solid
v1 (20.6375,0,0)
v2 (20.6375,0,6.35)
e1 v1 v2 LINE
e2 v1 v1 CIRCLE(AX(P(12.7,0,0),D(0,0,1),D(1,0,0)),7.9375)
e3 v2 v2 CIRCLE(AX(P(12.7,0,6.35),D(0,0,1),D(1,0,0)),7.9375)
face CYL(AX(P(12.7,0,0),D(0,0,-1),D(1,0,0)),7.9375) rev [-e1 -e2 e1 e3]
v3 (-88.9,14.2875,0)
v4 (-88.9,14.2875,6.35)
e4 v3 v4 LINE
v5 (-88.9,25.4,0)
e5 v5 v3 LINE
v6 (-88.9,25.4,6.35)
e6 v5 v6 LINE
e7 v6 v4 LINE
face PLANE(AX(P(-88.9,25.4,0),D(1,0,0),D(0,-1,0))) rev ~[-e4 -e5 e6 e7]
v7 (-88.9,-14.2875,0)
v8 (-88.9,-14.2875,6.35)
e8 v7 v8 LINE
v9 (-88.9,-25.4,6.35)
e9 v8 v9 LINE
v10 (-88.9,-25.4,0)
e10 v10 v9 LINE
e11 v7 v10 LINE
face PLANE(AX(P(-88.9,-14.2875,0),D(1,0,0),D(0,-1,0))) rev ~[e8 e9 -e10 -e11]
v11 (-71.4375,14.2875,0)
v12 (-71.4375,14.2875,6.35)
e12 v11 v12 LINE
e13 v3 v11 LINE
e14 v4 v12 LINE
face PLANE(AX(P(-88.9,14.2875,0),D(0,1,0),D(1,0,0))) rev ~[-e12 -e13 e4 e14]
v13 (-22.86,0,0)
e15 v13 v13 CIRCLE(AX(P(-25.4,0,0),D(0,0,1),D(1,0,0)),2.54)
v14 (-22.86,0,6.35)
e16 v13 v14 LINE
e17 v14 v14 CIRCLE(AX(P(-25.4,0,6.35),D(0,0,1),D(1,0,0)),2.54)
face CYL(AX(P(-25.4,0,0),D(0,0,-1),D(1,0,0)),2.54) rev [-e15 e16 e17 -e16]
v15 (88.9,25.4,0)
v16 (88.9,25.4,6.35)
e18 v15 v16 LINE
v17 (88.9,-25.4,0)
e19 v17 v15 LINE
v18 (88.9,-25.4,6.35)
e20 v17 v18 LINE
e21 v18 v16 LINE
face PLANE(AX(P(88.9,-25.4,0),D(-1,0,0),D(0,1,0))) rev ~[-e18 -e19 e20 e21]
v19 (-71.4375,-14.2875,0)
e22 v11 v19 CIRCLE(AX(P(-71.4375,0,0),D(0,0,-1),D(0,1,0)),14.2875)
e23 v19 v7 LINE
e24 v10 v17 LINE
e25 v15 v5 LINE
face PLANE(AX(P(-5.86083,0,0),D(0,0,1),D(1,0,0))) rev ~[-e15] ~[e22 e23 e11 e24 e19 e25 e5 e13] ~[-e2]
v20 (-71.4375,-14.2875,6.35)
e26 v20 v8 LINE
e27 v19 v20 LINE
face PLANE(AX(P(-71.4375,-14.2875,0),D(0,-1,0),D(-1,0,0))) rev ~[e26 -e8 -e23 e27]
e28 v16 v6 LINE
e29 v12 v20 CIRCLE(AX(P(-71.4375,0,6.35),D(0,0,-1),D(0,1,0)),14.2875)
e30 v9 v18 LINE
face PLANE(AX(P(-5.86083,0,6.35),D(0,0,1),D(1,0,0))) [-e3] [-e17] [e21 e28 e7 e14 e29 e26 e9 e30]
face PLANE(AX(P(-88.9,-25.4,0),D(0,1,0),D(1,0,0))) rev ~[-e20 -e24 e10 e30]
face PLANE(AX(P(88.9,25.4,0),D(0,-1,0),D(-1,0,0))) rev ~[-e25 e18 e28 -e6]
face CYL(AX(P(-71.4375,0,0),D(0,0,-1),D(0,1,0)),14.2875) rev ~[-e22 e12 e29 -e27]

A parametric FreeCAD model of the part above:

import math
import FreeCAD as App
import Part
import Sketcher

V = App.Vector
Q = App.Units.Quantity

doc = App.newDocument("Part")
body = doc.addObject("PartDesign::Body", "Body")

# Sketch on XY plane
sketch1 = body.newObject("Sketcher::SketchObject", "Sketch")
sketch1.AttachmentSupport = (doc.getObject("XY_Plane"), [""])
sketch1.MapMode = "FlatFace"
sketch1.addGeometry([
    Part.LineSegment(V(88.9, -25.4, 0), V(88.9, 25.4, 0)),  # 0
    Part.LineSegment(V(88.9, 25.4, 0), V(-88.9, 25.4, 0)),  # 1
    Part.LineSegment(V(-88.9, 25.4, 0), V(-88.9, 14.3, 0)),  # 2
    Part.LineSegment(V(-88.9, 14.3, 0), V(-71.4, 14.3, 0)),  # 3
    Part.ArcOfCircle(Part.Circle(V(-71.4, 0, 0), V(0, 0, 1), 14.3), math.radians(-90), math.radians(90)),  # 4
    Part.LineSegment(V(-71.4, -14.3, 0), V(-88.9, -14.3, 0)),  # 5
    Part.LineSegment(V(-88.9, -14.3, 0), V(-88.9, -25.4, 0)),  # 6
    Part.LineSegment(V(-88.9, -25.4, 0), V(88.9, -25.4, 0)),  # 7
    Part.Circle(V(-25.4, 0, 0), V(0, 0, 1), 2.5),  # 8
    Part.Circle(V(12.7, 0, 0), V(0, 0, 1), 7.9),  # 9
], False)
sketch1.addConstraint([
    Sketcher.Constraint("Coincident", 0, 2, 1, 1),
    Sketcher.Constraint("Coincident", 1, 2, 2, 1),
    Sketcher.Constraint("Coincident", 2, 2, 3, 1),
    Sketcher.Constraint("Tangent", 3, 2, 4, 2),
    Sketcher.Constraint("Tangent", 4, 1, 5, 1),
    Sketcher.Constraint("Coincident", 5, 2, 6, 1),
    Sketcher.Constraint("Coincident", 6, 2, 7, 1),
    Sketcher.Constraint("Coincident", 7, 2, 0, 1),
    Sketcher.Constraint("Vertical", 0),
    Sketcher.Constraint("Horizontal", 1),
    Sketcher.Constraint("Vertical", 2),
    Sketcher.Constraint("Horizontal", 3),
    Sketcher.Constraint("Horizontal", 5),
    Sketcher.Constraint("Vertical", 6),
    Sketcher.Constraint("Horizontal", 7),
    Sketcher.Constraint("Symmetric", 0, 2, 6, 2, -1, 1),
    Sketcher.Constraint("Symmetric", 2, 2, 5, 2, -1),
    Sketcher.Constraint("PointOnObject", 8, 3, -1),
    Sketcher.Constraint("PointOnObject", 9, 3, -1),
    Sketcher.Constraint("Diameter", 8, Q("0.2 in")),
    Sketcher.Constraint("DistanceX", 1, 2, 1, 1, Q("7 in")),
    Sketcher.Constraint("DistanceY", 0, 1, 0, 2, Q("2 in")),
    Sketcher.Constraint("Diameter", 9, Q("0.625 in")),
    Sketcher.Constraint("DistanceX", 8, 3, -1, 1, Q("1 in")),
    Sketcher.Constraint("Radius", 4, Q("0.5625 in")),
    Sketcher.Constraint("DistanceX", 9, 3, 0, 2, Q("3 in")),
    Sketcher.Constraint("DistanceX", 3, 1, 3, 2, Q("0.6875 in")),
])
pad1 = body.newObject("PartDesign::Pad", "Pad")
pad1.Profile = sketch1
pad1.Length = Q("0.25 in")

doc.recompute()
